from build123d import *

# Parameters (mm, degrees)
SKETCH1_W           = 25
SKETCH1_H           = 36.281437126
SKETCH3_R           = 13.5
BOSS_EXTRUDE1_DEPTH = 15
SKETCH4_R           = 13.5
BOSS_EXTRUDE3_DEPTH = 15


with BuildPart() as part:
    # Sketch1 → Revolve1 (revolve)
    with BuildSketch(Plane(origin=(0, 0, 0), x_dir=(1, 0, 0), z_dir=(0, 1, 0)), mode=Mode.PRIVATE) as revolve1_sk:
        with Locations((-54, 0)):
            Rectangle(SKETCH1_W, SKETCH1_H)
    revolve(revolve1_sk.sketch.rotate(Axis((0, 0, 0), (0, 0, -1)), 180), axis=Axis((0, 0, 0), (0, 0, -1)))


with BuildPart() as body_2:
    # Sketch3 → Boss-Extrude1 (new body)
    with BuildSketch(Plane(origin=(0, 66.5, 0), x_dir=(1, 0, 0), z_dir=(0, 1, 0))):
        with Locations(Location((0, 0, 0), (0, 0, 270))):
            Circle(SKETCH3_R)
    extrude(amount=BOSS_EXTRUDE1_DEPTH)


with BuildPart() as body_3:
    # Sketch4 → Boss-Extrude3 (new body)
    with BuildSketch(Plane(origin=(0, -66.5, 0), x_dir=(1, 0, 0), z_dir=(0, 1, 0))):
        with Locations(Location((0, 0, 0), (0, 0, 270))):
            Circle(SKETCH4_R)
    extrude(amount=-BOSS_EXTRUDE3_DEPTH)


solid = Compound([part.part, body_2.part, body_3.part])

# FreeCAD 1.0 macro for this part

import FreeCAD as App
import Part
import Sketcher
from FreeCAD import Vector
Q = App.Units.Quantity


def add_polygon(sketch, points):
    """Adds a closed chain of lines whose ends are joined by coincident constraints."""
    first, n = sketch.GeometryCount, len(points)
    for a, b in zip(points, points[1:] + points[:1]):
        sketch.addGeometry(Part.LineSegment(App.Vector(*a, 0), App.Vector(*b, 0)), False)
    for i in range(n):
        sketch.addConstraint(Sketcher.Constraint("Coincident", first + i, 2, first + (i + 1) % n, 1))

doc = App.newDocument("Part")
body = doc.addObject("PartDesign::Body", "Body")

# Sketch on XZ plane
sketch1 = doc.addObject("Sketcher::SketchObject", "Sketch")
body.addObject(sketch1)
sketch1.AttachmentSupport = (doc.XZ_Plane, [""])
sketch1.MapMode = "FlatFace"
add_polygon(sketch1, [(-66, -18), (-66, 18), (-42, 18), (-42, -18)])  # lines 0-3
sketch1.addConstraint(Sketcher.Constraint("Vertical", 0))
sketch1.addConstraint(Sketcher.Constraint("Horizontal", 1))
sketch1.addConstraint(Sketcher.Constraint("Vertical", 2))
sketch1.addConstraint(Sketcher.Constraint("Horizontal", 3))
sketch1.addConstraint(Sketcher.Constraint("DistanceX", 1, 1, 1, 2, Q("25 mm")))
sketch1.addConstraint(Sketcher.Constraint("DistanceX", 0, 2, -1, 1, Q("66.5 mm")))
sketch1.addConstraint(Sketcher.Constraint("DistanceY", 0, 1, 0, 2, Q("36.281437 mm")))
sketch1.addConstraint(Sketcher.Constraint("DistanceY", -1, 1, 0, 2, Q("18.140719 mm")))
revolution = doc.addObject("PartDesign::Revolution", "Revolution")
body.addObject(revolution)
revolution.Profile = sketch1
revolution.ReferenceAxis = (sketch1, ["V_Axis"])
revolution.Angle = 360
body2 = doc.addObject("PartDesign::Body", "Body001")

# Sketch on XZ plane
sketch2 = doc.addObject("Sketcher::SketchObject", "Sketch001")
body2.addObject(sketch2)
sketch2.AttachmentSupport = (doc.getObject("XZ_Plane001"), [""])
sketch2.MapMode = "FlatFace"
sketch2.AttachmentOffset = App.Placement(Vector(0, 0, -66.5), App.Rotation())
sketch2.addGeometry(Part.Circle(Vector(0, 0, 0), Vector(0, 0, 1), 14), False)
sketch2.addConstraint(Sketcher.Constraint("Coincident", 0, 3, -1, 1))
sketch2.addConstraint(Sketcher.Constraint("Diameter", 0, Q("27 mm")))
pad1 = doc.addObject("PartDesign::Pad", "Pad")
body2.addObject(pad1)
pad1.Profile = sketch2
pad1.Length = 15
pad1.Reversed = True
body3 = doc.addObject("PartDesign::Body", "Body002")

# Sketch on XZ plane
sketch3 = doc.addObject("Sketcher::SketchObject", "Sketch002")
body3.addObject(sketch3)
sketch3.AttachmentSupport = (doc.getObject("XZ_Plane002"), [""])
sketch3.MapMode = "FlatFace"
sketch3.AttachmentOffset = App.Placement(Vector(0, 0, 66.5), App.Rotation())
sketch3.addGeometry(Part.Circle(Vector(0, 0, 0), Vector(0, 0, 1), 14), False)
sketch3.addConstraint(Sketcher.Constraint("Coincident", 0, 3, -1, 1))
sketch3.addConstraint(Sketcher.Constraint("Diameter", 0, Q("27 mm")))
pad2 = doc.addObject("PartDesign::Pad", "Pad001")
body3.addObject(pad2)
pad2.Profile = sketch3
pad2.Length = 15

doc.recompute()
